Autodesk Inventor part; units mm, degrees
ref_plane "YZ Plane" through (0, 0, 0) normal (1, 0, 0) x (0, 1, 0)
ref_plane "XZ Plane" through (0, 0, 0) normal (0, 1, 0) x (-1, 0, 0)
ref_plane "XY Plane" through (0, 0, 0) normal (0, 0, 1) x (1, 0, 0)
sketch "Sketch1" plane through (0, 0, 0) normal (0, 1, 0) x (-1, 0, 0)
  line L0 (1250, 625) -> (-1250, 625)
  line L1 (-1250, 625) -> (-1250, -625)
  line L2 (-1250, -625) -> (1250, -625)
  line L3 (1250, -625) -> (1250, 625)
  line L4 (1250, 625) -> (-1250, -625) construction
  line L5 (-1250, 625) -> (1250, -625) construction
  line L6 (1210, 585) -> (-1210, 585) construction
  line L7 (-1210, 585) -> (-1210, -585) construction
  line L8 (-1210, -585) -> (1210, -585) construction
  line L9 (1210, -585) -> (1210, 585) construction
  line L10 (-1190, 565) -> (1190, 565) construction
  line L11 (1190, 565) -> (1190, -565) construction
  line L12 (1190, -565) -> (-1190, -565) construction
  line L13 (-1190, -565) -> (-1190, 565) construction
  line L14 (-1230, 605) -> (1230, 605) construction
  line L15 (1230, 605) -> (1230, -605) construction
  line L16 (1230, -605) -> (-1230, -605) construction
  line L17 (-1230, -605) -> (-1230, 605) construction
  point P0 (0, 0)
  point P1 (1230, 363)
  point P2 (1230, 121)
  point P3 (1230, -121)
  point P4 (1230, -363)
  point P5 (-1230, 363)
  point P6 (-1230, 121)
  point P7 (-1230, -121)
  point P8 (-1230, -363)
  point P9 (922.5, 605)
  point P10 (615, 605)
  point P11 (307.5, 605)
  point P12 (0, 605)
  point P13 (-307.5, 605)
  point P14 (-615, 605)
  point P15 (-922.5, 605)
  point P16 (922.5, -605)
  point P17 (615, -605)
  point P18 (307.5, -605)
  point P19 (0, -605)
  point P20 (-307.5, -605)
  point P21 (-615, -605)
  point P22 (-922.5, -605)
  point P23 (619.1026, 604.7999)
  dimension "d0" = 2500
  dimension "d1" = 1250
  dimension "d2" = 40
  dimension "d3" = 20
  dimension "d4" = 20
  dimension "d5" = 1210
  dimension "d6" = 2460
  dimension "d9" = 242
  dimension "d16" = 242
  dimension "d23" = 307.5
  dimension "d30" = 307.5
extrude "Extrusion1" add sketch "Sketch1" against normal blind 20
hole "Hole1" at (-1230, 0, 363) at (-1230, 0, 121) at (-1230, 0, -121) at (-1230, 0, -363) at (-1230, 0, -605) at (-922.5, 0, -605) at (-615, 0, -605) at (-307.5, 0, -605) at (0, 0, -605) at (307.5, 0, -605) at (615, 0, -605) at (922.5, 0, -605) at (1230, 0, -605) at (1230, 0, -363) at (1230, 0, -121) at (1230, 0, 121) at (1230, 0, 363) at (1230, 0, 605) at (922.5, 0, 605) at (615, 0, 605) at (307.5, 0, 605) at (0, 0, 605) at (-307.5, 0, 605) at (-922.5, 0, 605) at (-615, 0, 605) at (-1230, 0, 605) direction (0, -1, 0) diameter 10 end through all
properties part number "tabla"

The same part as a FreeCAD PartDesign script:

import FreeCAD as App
import Part
import Sketcher
Q = App.Units.Quantity


def add_polygon(sketch, points):
    """Adds a closed chain of lines whose ends are joined by coincident constraints."""
    first, n = sketch.GeometryCount, len(points)
    for a, b in zip(points, points[1:] + points[:1]):
        sketch.addGeometry(Part.LineSegment(App.Vector(*a, 0), App.Vector(*b, 0)), False)
    for i in range(n):
        sketch.addConstraint(Sketcher.Constraint("Coincident", first + i, 2, first + (i + 1) % n, 1))

doc = App.newDocument("Part")
body = doc.addObject("PartDesign::Body", "Body")

# Sketch on XZ plane
sketch1 = body.newObject("Sketcher::SketchObject", "Sketch")
sketch1.AttachmentSupport = (doc.getObject("XZ_Plane"), [""])
sketch1.MapMode = "FlatFace"
add_polygon(sketch1, [(-1250, -625), (-1250, 625), (1250, 625), (1250, -625)])  # lines 0-3
sketch1.addConstraint([
    Sketcher.Constraint("Vertical", 0),
    Sketcher.Constraint("Horizontal", 1),
    Sketcher.Constraint("Vertical", 2),
    Sketcher.Constraint("Horizontal", 3),
    Sketcher.Constraint("Symmetric", 0, 2, 2, 2, -1, 1),
    Sketcher.Constraint("DistanceX", 1, 1, 1, 2, Q("2500 mm")),
    Sketcher.Constraint("DistanceY", 0, 1, 0, 2, Q("1250 mm")),
])
pad1 = body.newObject("PartDesign::Pad", "Pad")
pad1.Profile = sketch1
pad1.Length = 20

# Sketch on XZ plane
sketch2 = body.newObject("Sketcher::SketchObject", "Sketch001")
sketch2.AttachmentSupport = (doc.getObject("XZ_Plane"), [""])
sketch2.MapMode = "FlatFace"
sketch2.addGeometry([
    Part.Circle(App.Vector(-1230, 363, 0), App.Vector(0, 0, 1), 5),  # 0
    Part.Circle(App.Vector(-1230, 121, 0), App.Vector(0, 0, 1), 5),  # 1
    Part.Circle(App.Vector(-1230, -121, 0), App.Vector(0, 0, 1), 5),  # 2
    Part.Circle(App.Vector(-1230, -363, 0), App.Vector(0, 0, 1), 5),  # 3
    Part.Circle(App.Vector(-1230, -605, 0), App.Vector(0, 0, 1), 5),  # 4
    Part.Circle(App.Vector(-922, -605, 0), App.Vector(0, 0, 1), 5),  # 5
    Part.Circle(App.Vector(-615, -605, 0), App.Vector(0, 0, 1), 5),  # 6
    Part.Circle(App.Vector(-308, -605, 0), App.Vector(0, 0, 1), 5),  # 7
    Part.Circle(App.Vector(0, -605, 0), App.Vector(0, 0, 1), 5),  # 8
    Part.Circle(App.Vector(308, -605, 0), App.Vector(0, 0, 1), 5),  # 9
    Part.Circle(App.Vector(615, -605, 0), App.Vector(0, 0, 1), 5),  # 10
    Part.Circle(App.Vector(922, -605, 0), App.Vector(0, 0, 1), 5),  # 11
    Part.Circle(App.Vector(1230, -605, 0), App.Vector(0, 0, 1), 5),  # 12
    Part.Circle(App.Vector(1230, -363, 0), App.Vector(0, 0, 1), 5),  # 13
    Part.Circle(App.Vector(1230, -121, 0), App.Vector(0, 0, 1), 5),  # 14
    Part.Circle(App.Vector(1230, 121, 0), App.Vector(0, 0, 1), 5),  # 15
    Part.Circle(App.Vector(1230, 363, 0), App.Vector(0, 0, 1), 5),  # 16
    Part.Circle(App.Vector(1230, 605, 0), App.Vector(0, 0, 1), 5),  # 17
    Part.Circle(App.Vector(922, 605, 0), App.Vector(0, 0, 1), 5),  # 18
    Part.Circle(App.Vector(615, 605, 0), App.Vector(0, 0, 1), 5),  # 19
    Part.Circle(App.Vector(308, 605, 0), App.Vector(0, 0, 1), 5),  # 20
    Part.Circle(App.Vector(0, 605, 0), App.Vector(0, 0, 1), 5),  # 21
    Part.Circle(App.Vector(-308, 605, 0), App.Vector(0, 0, 1), 5),  # 22
    Part.Circle(App.Vector(-922, 605, 0), App.Vector(0, 0, 1), 5),  # 23
    Part.Circle(App.Vector(-615, 605, 0), App.Vector(0, 0, 1), 5),  # 24
    Part.Circle(App.Vector(-1230, 605, 0), App.Vector(0, 0, 1), 5),  # 25
], False)
sketch2.addConstraint([
    Sketcher.Constraint("Equal", 0, 1),
    Sketcher.Constraint("Equal", 1, 2),
    Sketcher.Constraint("Equal", 2, 3),
    Sketcher.Constraint("Equal", 3, 4),
    Sketcher.Constraint("Equal", 4, 5),
    Sketcher.Constraint("Equal", 5, 6),
    Sketcher.Constraint("Equal", 6, 7),
    Sketcher.Constraint("Equal", 7, 8),
    Sketcher.Constraint("Equal", 8, 9),
    Sketcher.Constraint("Equal", 9, 10),
    Sketcher.Constraint("Equal", 10, 11),
    Sketcher.Constraint("Equal", 11, 12),
    Sketcher.Constraint("Equal", 12, 13),
    Sketcher.Constraint("Equal", 13, 14),
    Sketcher.Constraint("Equal", 14, 15),
    Sketcher.Constraint("Equal", 15, 16),
    Sketcher.Constraint("Equal", 16, 17),
    Sketcher.Constraint("Equal", 17, 18),
    Sketcher.Constraint("Equal", 18, 19),
    Sketcher.Constraint("Equal", 19, 20),
    Sketcher.Constraint("Equal", 20, 21),
    Sketcher.Constraint("Equal", 21, 22),
    Sketcher.Constraint("Equal", 22, 23),
    Sketcher.Constraint("Equal", 23, 24),
    Sketcher.Constraint("Equal", 24, 25),
    Sketcher.Constraint("Symmetric", 0, 3, 13, 3, -1, 1),
    Sketcher.Constraint("Symmetric", 1, 3, 14, 3, -1, 1),
    Sketcher.Constraint("Symmetric", 2, 3, 15, 3, -1, 1),
    Sketcher.Constraint("Symmetric", 3, 3, 16, 3, -1, 1),
    Sketcher.Constraint("Symmetric", 4, 3, 17, 3, -1, 1),
    Sketcher.Constraint("Symmetric", 5, 3, 18, 3, -1, 1),
    Sketcher.Constraint("Symmetric", 6, 3, 19, 3, -1, 1),
    Sketcher.Constraint("Symmetric", 7, 3, 20, 3, -1, 1),
    Sketcher.Constraint("Symmetric", 8, 3, 21, 3, -1, 1),
    Sketcher.Constraint("Symmetric", 9, 3, 22, 3, -1, 1),
    Sketcher.Constraint("Symmetric", 11, 3, 23, 3, -1, 1),
    Sketcher.Constraint("Symmetric", 10, 3, 24, 3, -1, 1),
    Sketcher.Constraint("Symmetric", 12, 3, 25, 3, -1, 1),
    Sketcher.Constraint("Symmetric", 7, 3, 9, 3, -2),
    Sketcher.Constraint("Symmetric", 6, 3, 10, 3, -2),
    Sketcher.Constraint("Symmetric", 5, 3, 11, 3, -2),
    Sketcher.Constraint("Symmetric", 4, 3, 12, 3, -2),
    Sketcher.Constraint("Symmetric", 3, 3, 13, 3, -2),
    Sketcher.Constraint("Symmetric", 2, 3, 14, 3, -2),
    Sketcher.Constraint("PointOnObject", 8, 3, -2),
    Sketcher.Constraint("Horizontal", 4, 3, 5, 3),
    Sketcher.Constraint("Horizontal", 5, 3, 6, 3),
    Sketcher.Constraint("Horizontal", 6, 3, 7, 3),
    Sketcher.Constraint("Horizontal", 7, 3, 8, 3),
    Sketcher.Constraint("Vertical", 0, 3, 1, 3),
    Sketcher.Constraint("Vertical", 3, 3, 4, 3),
    Sketcher.Constraint("Diameter", 0, Q("10 mm")),
    Sketcher.Constraint("DistanceX", 0, 3, -1, 1, Q("1230 mm")),
    Sketcher.Constraint("DistanceY", -1, 1, 0, 3, Q("363 mm")),
    Sketcher.Constraint("DistanceY", -1, 1, 1, 3, Q("121 mm")),
    Sketcher.Constraint("DistanceY", 4, 3, -1, 1, Q("605 mm")),
    Sketcher.Constraint("DistanceX", 6, 3, -1, 1, Q("615 mm")),
    Sketcher.Constraint("DistanceX", 5, 3, 7, 3, Q("615 mm")),
    Sketcher.Constraint("DistanceX", 7, 3, 9, 3, Q("615 mm")),
])
doc.recompute()
hole = body.newObject("PartDesign::Hole", "Hole")
hole.Profile = sketch2
hole.ThreadType = "None"
hole.Diameter = 10
hole.DepthType = "ThroughAll"
hole.Reversed = True

doc.recompute()
